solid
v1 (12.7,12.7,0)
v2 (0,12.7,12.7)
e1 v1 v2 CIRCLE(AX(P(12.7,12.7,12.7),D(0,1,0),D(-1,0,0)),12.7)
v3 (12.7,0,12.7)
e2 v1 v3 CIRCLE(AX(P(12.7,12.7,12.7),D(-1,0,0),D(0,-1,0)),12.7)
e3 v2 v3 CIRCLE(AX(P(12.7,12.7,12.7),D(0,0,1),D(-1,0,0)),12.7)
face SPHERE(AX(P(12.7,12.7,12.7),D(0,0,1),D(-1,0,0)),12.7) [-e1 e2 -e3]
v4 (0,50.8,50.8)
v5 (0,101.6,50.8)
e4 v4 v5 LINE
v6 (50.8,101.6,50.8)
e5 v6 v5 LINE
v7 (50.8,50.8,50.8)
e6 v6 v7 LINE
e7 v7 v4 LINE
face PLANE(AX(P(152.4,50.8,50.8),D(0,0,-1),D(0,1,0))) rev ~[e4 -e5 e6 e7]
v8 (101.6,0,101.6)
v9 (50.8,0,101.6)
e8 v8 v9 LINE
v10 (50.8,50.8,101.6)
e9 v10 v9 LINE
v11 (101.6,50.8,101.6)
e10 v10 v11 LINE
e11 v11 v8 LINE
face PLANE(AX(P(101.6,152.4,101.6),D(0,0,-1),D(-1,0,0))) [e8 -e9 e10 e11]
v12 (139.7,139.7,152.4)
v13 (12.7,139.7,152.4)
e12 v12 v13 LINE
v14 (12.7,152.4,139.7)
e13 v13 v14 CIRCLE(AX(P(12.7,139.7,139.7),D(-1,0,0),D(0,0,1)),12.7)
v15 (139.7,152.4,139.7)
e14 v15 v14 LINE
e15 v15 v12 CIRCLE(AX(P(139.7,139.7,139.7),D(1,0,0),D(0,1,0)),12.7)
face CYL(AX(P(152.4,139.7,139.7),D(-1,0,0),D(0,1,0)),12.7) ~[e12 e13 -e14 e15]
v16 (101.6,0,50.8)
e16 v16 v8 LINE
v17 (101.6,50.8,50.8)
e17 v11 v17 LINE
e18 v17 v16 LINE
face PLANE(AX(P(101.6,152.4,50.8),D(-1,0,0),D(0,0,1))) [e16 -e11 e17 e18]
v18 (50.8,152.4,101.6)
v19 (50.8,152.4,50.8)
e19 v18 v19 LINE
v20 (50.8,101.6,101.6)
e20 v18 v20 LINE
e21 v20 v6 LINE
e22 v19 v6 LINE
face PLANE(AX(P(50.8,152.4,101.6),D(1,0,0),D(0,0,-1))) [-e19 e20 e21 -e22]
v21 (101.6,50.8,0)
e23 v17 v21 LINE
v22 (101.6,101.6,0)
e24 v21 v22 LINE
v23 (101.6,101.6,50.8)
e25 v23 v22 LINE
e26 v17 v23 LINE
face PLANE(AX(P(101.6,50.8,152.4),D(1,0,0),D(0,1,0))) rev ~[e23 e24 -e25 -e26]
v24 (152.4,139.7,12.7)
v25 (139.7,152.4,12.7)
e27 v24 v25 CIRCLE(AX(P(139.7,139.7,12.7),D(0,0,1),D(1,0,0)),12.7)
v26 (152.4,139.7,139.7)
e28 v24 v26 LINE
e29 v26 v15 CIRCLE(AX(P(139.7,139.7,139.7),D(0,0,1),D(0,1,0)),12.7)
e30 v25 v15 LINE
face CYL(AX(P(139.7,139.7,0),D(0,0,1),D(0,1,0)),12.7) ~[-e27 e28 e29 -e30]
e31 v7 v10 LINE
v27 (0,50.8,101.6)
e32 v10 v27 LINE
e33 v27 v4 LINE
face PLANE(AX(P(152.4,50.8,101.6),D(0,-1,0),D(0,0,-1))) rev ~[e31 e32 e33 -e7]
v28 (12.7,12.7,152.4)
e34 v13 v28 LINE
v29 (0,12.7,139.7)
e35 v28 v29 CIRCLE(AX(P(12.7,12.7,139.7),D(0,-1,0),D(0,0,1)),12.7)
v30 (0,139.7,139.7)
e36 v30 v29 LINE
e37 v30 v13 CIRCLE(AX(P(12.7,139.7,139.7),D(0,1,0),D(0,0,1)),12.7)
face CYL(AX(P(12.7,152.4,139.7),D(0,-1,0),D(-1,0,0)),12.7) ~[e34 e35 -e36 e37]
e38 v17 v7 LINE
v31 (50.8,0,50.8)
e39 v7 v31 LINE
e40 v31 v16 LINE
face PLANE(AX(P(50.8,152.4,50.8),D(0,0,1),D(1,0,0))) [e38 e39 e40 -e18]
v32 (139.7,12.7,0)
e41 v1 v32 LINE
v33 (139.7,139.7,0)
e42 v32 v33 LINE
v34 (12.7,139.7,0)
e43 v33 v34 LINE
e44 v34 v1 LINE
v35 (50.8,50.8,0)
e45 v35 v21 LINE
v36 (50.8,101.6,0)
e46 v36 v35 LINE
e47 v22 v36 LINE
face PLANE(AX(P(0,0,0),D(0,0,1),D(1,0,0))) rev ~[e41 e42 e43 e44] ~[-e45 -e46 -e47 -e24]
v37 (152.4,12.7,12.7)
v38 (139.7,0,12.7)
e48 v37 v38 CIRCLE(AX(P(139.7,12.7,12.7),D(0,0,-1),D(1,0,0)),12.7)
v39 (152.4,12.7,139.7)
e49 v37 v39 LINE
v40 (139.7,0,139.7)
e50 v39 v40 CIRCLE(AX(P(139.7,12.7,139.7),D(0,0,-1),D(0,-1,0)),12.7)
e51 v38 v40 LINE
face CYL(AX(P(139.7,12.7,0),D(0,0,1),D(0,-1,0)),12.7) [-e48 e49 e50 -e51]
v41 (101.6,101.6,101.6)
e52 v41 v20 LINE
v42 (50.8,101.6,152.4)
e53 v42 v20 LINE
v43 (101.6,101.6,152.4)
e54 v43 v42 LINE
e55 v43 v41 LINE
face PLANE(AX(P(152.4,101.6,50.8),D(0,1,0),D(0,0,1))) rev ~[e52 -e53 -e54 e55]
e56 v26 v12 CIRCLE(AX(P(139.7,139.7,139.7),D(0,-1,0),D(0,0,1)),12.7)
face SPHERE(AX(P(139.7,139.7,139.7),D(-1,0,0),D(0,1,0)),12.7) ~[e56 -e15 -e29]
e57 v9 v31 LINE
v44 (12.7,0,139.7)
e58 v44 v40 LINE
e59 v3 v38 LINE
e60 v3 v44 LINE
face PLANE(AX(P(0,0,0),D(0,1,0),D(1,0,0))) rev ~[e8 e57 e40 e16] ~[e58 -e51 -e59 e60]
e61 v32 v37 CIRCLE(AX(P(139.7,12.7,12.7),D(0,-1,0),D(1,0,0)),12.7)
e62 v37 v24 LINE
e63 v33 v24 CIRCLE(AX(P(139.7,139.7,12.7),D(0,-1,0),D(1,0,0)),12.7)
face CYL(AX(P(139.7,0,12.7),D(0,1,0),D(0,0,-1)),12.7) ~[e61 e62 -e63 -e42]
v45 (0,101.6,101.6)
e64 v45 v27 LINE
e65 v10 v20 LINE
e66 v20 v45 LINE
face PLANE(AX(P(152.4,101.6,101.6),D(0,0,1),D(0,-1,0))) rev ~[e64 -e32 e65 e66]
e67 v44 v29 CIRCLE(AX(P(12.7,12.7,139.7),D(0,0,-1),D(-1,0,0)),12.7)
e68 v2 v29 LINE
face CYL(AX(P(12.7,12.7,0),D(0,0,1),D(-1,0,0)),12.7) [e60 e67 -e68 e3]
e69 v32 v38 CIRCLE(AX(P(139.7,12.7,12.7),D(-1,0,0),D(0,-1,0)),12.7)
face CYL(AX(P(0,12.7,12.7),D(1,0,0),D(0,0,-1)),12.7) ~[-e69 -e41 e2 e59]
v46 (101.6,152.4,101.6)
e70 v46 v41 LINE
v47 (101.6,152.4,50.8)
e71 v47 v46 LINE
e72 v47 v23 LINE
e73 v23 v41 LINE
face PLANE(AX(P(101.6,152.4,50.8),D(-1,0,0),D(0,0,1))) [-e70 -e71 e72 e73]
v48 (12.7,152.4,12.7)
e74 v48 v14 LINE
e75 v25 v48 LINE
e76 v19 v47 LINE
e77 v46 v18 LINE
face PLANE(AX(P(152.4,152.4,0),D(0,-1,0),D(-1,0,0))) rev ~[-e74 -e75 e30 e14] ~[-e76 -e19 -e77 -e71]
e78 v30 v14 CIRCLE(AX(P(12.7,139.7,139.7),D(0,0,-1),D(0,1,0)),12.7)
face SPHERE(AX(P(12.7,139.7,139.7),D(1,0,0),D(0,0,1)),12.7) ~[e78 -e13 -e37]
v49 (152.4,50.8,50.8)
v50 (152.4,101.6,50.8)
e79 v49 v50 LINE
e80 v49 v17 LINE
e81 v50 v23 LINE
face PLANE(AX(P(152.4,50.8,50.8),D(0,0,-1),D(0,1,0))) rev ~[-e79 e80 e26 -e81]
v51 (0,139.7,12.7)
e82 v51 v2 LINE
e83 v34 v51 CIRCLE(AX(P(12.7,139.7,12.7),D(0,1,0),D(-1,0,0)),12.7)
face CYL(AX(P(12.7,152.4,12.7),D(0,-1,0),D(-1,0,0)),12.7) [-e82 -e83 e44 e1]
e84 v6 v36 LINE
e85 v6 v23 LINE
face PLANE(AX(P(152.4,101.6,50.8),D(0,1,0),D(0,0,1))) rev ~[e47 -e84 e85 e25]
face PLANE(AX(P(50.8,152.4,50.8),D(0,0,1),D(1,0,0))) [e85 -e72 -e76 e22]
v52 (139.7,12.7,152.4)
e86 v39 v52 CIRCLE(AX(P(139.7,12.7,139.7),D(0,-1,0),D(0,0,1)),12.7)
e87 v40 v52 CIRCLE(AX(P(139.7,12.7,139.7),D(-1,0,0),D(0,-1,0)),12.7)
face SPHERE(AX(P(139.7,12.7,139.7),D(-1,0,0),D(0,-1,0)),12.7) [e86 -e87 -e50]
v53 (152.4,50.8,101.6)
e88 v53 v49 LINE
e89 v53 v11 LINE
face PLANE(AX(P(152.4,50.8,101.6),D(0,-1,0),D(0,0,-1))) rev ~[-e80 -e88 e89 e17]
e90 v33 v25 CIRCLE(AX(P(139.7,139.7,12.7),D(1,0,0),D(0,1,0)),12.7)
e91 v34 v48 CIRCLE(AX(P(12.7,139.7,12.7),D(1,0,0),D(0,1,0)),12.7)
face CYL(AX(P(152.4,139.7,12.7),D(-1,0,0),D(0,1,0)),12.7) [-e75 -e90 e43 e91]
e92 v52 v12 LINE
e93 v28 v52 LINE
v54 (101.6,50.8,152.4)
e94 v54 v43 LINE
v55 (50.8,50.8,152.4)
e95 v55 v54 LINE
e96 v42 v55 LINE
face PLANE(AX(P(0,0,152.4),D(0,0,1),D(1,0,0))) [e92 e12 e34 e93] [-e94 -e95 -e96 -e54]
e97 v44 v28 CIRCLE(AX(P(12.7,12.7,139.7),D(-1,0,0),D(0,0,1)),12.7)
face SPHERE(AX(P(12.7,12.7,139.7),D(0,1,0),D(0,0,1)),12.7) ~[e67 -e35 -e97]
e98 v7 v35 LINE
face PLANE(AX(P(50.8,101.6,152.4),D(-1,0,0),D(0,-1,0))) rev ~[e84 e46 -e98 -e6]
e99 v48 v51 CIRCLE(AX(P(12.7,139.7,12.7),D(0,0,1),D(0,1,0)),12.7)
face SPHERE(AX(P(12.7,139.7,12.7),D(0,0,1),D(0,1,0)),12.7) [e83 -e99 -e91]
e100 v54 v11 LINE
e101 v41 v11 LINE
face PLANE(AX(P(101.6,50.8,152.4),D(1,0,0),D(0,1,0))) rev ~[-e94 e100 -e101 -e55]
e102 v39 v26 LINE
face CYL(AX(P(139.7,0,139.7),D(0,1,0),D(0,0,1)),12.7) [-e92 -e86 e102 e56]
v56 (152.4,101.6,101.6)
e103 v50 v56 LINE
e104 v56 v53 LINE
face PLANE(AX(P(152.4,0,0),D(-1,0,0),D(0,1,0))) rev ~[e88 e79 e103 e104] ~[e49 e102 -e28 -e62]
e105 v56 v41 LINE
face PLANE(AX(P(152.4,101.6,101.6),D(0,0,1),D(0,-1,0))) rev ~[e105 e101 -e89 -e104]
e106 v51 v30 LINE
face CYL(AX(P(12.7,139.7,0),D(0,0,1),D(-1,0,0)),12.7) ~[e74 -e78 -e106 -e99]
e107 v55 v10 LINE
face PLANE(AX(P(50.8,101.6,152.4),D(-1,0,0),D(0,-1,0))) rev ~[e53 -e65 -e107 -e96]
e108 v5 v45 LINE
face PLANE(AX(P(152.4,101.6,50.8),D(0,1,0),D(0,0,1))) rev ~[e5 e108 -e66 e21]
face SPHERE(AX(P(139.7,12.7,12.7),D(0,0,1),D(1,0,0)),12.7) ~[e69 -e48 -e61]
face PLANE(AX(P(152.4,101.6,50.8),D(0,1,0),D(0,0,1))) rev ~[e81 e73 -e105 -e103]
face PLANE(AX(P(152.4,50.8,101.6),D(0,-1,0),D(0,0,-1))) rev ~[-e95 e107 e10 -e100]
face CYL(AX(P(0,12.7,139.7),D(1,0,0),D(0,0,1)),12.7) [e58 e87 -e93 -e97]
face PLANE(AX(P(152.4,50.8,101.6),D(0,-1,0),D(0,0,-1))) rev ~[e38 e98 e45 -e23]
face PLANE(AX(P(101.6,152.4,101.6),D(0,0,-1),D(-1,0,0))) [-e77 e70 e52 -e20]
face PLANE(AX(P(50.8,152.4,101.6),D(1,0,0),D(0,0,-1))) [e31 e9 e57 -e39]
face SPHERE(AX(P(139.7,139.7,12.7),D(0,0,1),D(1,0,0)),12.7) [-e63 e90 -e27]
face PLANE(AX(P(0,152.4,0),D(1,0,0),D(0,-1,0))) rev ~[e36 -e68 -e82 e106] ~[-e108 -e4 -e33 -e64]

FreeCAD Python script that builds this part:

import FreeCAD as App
import Part
import Sketcher
from FreeCAD import Vector
Q = App.Units.Quantity


def edges_at(feature, points):
    """Names of the edges that pass closest to the given points."""
    edges = feature.Shape.Edges
    near = lambda p: min(range(len(edges)), key=lambda i: edges[i].distToShape(Part.Vertex(*p))[0])
    return sorted({f"Edge{near(p) + 1}" for p in points})

doc = App.newDocument("Part")
body = doc.addObject("PartDesign::Body", "Body")

sketch1 = body.newObject("Sketcher::SketchObject", "Sketch")
sketch1.AttachmentSupport = (doc.getObject("XY_Plane"), [""])
sketch1.MapMode = "FlatFace"
sketch1.addGeometry([
    Part.LineSegment(Vector(0, 152, 0), Vector(0, 0, 0)),
    Part.LineSegment(Vector(0, 0, 0), Vector(152, 0, 0)),
    Part.LineSegment(Vector(152, 0, 0), Vector(152, 152, 0)),
    Part.LineSegment(Vector(152, 152, 0), Vector(0, 152, 0)),
], False)
sketch1.addConstraint([
    Sketcher.Constraint("Coincident", 0, 2, 1, 1),
    Sketcher.Constraint("Coincident", 1, 2, 2, 1),
    Sketcher.Constraint("Coincident", 2, 2, 3, 1),
    Sketcher.Constraint("Coincident", 3, 2, 0, 1),
    Sketcher.Constraint("Vertical", 0),
    Sketcher.Constraint("Horizontal", 1),
    Sketcher.Constraint("Vertical", 2),
    Sketcher.Constraint("Horizontal", 3),
    Sketcher.Constraint("Coincident", 0, 2, -1, 1),
    Sketcher.Constraint("Equal", 3, 0),
    Sketcher.Constraint("DistanceX", 1, 1, 1, 2, Q("6 in")),
])
pad1 = body.newObject("PartDesign::Pad", "Pad")
pad1.Profile = sketch1
pad1.Length = Q("6 in")

sketch2 = body.newObject("Sketcher::SketchObject", "Sketch001")
sketch2.AttachmentSupport = (doc.getObject("XY_Plane"), [""])
sketch2.MapMode = "FlatFace"
sketch2.AttachmentOffset = App.Placement(Vector(0, 0, 6 * 25.4), App.Rotation())
sketch2.addGeometry([
    Part.LineSegment(Vector(51, 102, 0), Vector(51, 51, 0)),
    Part.LineSegment(Vector(51, 51, 0), Vector(102, 51, 0)),
    Part.LineSegment(Vector(102, 51, 0), Vector(102, 102, 0)),
    Part.LineSegment(Vector(102, 102, 0), Vector(51, 102, 0)),
], False)
sketch2.addConstraint([
    Sketcher.Constraint("Coincident", 0, 2, 1, 1),
    Sketcher.Constraint("Coincident", 1, 2, 2, 1),
    Sketcher.Constraint("Coincident", 2, 2, 3, 1),
    Sketcher.Constraint("Coincident", 3, 2, 0, 1),
    Sketcher.Constraint("Vertical", 0),
    Sketcher.Constraint("Horizontal", 1),
    Sketcher.Constraint("Vertical", 2),
    Sketcher.Constraint("Horizontal", 3),
    Sketcher.Constraint("Equal", 3, 0),
    Sketcher.Constraint("DistanceX", 1, 1, 1, 2, Q("2 in")),
    Sketcher.Constraint("DistanceX", -1, 1, 0, 2, Q("2 in")),
    Sketcher.Constraint("DistanceY", -1, 1, 0, 2, Q("2 in")),
])
pocket1 = body.newObject("PartDesign::Pocket", "Pocket")
pocket1.Profile = sketch2
pocket1.Length = Q("7.1875 in")

sketch3 = body.newObject("Sketcher::SketchObject", "Sketch002")
sketch3.AttachmentSupport = (doc.getObject("YZ_Plane"), [""])
sketch3.MapMode = "FlatFace"
sketch3.AttachmentOffset = App.Placement(Vector(0, 0, 6 * 25.4), App.Rotation())
sketch3.addGeometry([
    Part.LineSegment(Vector(102, 102, 0), Vector(51, 102, 0)),
    Part.LineSegment(Vector(51, 102, 0), Vector(51, 51, 0)),
    Part.LineSegment(Vector(51, 51, 0), Vector(102, 51, 0)),
    Part.LineSegment(Vector(102, 51, 0), Vector(102, 102, 0)),
], False)
sketch3.addConstraint([
    Sketcher.Constraint("Coincident", 0, 2, 1, 1),
    Sketcher.Constraint("Coincident", 1, 2, 2, 1),
    Sketcher.Constraint("Coincident", 2, 2, 3, 1),
    Sketcher.Constraint("Coincident", 3, 2, 0, 1),
    Sketcher.Constraint("Horizontal", 0),
    Sketcher.Constraint("Vertical", 1),
    Sketcher.Constraint("Horizontal", 2),
    Sketcher.Constraint("Vertical", 3),
    Sketcher.Constraint("Equal", 2, 1),
    Sketcher.Constraint("DistanceX", 0, 2, 0, 1, Q("2 in")),
    Sketcher.Constraint("DistanceX", -1, 1, 0, 2, Q("2 in")),
    Sketcher.Constraint("DistanceY", -1, 1, 1, 2, Q("2 in")),
])
pocket2 = body.newObject("PartDesign::Pocket", "Pocket001")
pocket2.Profile = sketch3
pocket2.Length = Q("7.1875 in")

sketch4 = body.newObject("Sketcher::SketchObject", "Sketch003")
sketch4.AttachmentSupport = (doc.getObject("XZ_Plane"), [""])
sketch4.MapMode = "FlatFace"
sketch4.AttachmentOffset = App.Placement(Vector(0, 0, -6 * 25.4), App.Rotation())
sketch4.addGeometry([
    Part.LineSegment(Vector(51, 102, 0), Vector(102, 102, 0)),
    Part.LineSegment(Vector(102, 102, 0), Vector(102, 51, 0)),
    Part.LineSegment(Vector(102, 51, 0), Vector(51, 51, 0)),
    Part.LineSegment(Vector(51, 51, 0), Vector(51, 102, 0)),
], False)
sketch4.addConstraint([
    Sketcher.Constraint("Coincident", 0, 2, 1, 1),
    Sketcher.Constraint("Coincident", 1, 2, 2, 1),
    Sketcher.Constraint("Coincident", 2, 2, 3, 1),
    Sketcher.Constraint("Coincident", 3, 2, 0, 1),
    Sketcher.Constraint("Horizontal", 0),
    Sketcher.Constraint("Vertical", 1),
    Sketcher.Constraint("Horizontal", 2),
    Sketcher.Constraint("Vertical", 3),
    Sketcher.Constraint("Equal", 2, 1),
    Sketcher.Constraint("DistanceX", 0, 1, 0, 2, Q("2 in")),
    Sketcher.Constraint("DistanceY", -1, 1, 1, 2, Q("2 in")),
    Sketcher.Constraint("DistanceX", -1, 1, 2, 2, Q("2 in")),
])
pocket3 = body.newObject("PartDesign::Pocket", "Pocket002")
pocket3.Profile = sketch4
pocket3.Length = Q("7.1875 in")
pocket3.Reversed = True
doc.recompute()

fillet = body.newObject("PartDesign::Fillet", "Fillet")
fillet.Base = (pocket3, edges_at(pocket3, [
    (76.2, 152.4, 152.4),
    (152.4, 152.4, 76.2),
    (0, 76.2, 152.4),
    (76.2, 0, 152.4),
    (152.4, 0, 76.2),
    (152.4, 76.2, 152.4),
    (152.4, 76.2, 0),
    (0, 152.4, 76.2),
    (76.2, 152.4, 0),
    (0, 0, 76.2),
    (0, 76.2, 0),
    (76.2, 0, 0),
]))
fillet.Radius = Q("0.5 in")

doc.recompute()
